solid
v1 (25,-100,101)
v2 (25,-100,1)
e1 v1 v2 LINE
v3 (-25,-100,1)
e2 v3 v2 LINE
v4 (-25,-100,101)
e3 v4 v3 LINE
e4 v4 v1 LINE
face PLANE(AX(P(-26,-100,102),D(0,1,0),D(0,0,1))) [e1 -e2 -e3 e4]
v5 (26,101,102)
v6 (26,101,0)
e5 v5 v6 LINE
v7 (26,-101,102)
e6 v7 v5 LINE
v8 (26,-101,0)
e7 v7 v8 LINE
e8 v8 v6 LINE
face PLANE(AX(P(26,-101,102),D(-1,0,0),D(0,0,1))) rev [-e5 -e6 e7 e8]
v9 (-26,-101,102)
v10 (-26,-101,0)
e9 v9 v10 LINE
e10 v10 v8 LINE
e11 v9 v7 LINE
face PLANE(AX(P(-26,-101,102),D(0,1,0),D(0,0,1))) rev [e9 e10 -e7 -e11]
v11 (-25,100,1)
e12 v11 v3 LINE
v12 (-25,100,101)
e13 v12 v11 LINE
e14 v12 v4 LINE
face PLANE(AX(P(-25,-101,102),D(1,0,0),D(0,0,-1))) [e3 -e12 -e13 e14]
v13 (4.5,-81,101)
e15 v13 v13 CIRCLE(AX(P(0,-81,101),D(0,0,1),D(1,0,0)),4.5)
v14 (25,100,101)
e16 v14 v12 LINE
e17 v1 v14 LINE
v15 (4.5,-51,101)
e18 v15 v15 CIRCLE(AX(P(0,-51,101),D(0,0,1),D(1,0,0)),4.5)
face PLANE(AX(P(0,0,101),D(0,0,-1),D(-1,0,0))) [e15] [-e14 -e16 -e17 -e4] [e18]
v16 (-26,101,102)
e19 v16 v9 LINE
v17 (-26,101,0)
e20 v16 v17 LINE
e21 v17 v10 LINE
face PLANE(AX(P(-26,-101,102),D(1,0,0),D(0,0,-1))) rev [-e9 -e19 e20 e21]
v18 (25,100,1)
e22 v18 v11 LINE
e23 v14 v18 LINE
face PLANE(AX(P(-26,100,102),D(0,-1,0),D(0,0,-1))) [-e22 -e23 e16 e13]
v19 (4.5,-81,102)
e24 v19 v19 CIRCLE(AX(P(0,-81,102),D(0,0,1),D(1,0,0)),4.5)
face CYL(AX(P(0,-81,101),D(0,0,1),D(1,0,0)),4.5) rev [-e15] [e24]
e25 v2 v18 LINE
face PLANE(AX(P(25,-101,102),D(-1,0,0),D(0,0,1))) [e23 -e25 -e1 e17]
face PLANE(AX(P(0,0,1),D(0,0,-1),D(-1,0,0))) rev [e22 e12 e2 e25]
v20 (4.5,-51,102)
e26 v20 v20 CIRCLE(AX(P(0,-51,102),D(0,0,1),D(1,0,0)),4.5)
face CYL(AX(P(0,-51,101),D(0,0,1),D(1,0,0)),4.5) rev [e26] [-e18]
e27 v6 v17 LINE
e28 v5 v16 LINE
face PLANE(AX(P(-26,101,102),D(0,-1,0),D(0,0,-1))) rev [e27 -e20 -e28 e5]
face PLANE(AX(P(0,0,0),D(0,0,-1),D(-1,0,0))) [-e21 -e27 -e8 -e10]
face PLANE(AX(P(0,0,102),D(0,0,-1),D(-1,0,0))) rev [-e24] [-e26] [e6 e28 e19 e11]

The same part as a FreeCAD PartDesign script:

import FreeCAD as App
import Part
import Sketcher

V = App.Vector


def faces_at(feature, points):
    """Names of the faces that lie closest to the given points."""
    faces = feature.Shape.Faces
    near = lambda p: min(range(len(faces)), key=lambda i: faces[i].distToShape(Part.Vertex(*p))[0])
    return sorted({f"Face{near(p) + 1}" for p in points})

doc = App.newDocument("Part")
params = doc.addObject("Spreadsheet::Sheet", "Params")
for row, (alias, value) in enumerate([
    ("sketch1_width", "52 mm"),
    ("sketch1_height", "202 mm"),
    ("pad1_length", "102 mm"),
    ("thickness_wall", "1 mm"),
    ("sketch2_width", "50 mm"),
    ("sketch2_height", "200 mm"),
    ("pad2_length", "1 mm"),
    ("sketch3_diameter", "9 mm"),
    ("pocket1_length", "1 mm"),
], start=1):
    params.set(f"A{row}", alias)
    params.set(f"B{row}", "=" + value)
    params.setAlias(f"B{row}", alias)

body = doc.addObject("PartDesign::Body", "Body")

# Sketch on XY plane
sketch1 = body.newObject("Sketcher::SketchObject", "Sketch")
sketch1.AttachmentSupport = (doc.getObject("XY_Plane"), [""])
sketch1.MapMode = "FlatFace"
sketch1.addGeometry([
    Part.LineSegment(V(-26, 101, 0), V(-26, -101, 0)),
    Part.LineSegment(V(-26, -101, 0), V(26, -101, 0)),
    Part.LineSegment(V(26, -101, 0), V(26, 101, 0)),
    Part.LineSegment(V(26, 101, 0), V(-26, 101, 0)),
], False)
sketch1.addConstraint([
    Sketcher.Constraint("Coincident", 0, 2, 1, 1),
    Sketcher.Constraint("Coincident", 1, 2, 2, 1),
    Sketcher.Constraint("Coincident", 2, 2, 3, 1),
    Sketcher.Constraint("Coincident", 3, 2, 0, 1),
    Sketcher.Constraint("Vertical", 0),
    Sketcher.Constraint("Horizontal", 1),
    Sketcher.Constraint("Vertical", 2),
    Sketcher.Constraint("Horizontal", 3),
    Sketcher.Constraint("Symmetric", 0, 2, 2, 2, -1, 1),
    Sketcher.Constraint("DistanceX", 1, 1, 1, 2, 52.0),
    Sketcher.Constraint("DistanceY", 0, 2, 0, 1, 202.0),
])
sketch1.setExpression("Constraints[9]", "Params.sketch1_width")
sketch1.setExpression("Constraints[10]", "Params.sketch1_height")
pad1 = body.newObject("PartDesign::Pad", "Pad")
pad1.Profile = sketch1
pad1.setExpression("Length", "Params.pad1_length")
doc.recompute()

thickness = body.newObject("PartDesign::Thickness", "Thickness")
thickness.Base = (pad1, faces_at(pad1, [(0, 0, 102)]))
thickness.setExpression("Value", "Params.thickness_wall")
thickness.Reversed = True
thickness.Join = "Intersection"

# Sketch on XY plane
sketch2 = body.newObject("Sketcher::SketchObject", "Sketch001")
sketch2.AttachmentSupport = (doc.getObject("XY_Plane"), [""])
sketch2.MapMode = "FlatFace"
sketch2.AttachmentOffset = App.Placement(V(0, 0, 102), App.Rotation())
sketch2.addGeometry([
    Part.LineSegment(V(-25, 100, 0), V(-25, -100, 0)),
    Part.LineSegment(V(-25, -100, 0), V(25, -100, 0)),
    Part.LineSegment(V(25, -100, 0), V(25, 100, 0)),
    Part.LineSegment(V(25, 100, 0), V(-25, 100, 0)),
], False)
sketch2.addConstraint([
    Sketcher.Constraint("Coincident", 0, 2, 1, 1),
    Sketcher.Constraint("Coincident", 1, 2, 2, 1),
    Sketcher.Constraint("Coincident", 2, 2, 3, 1),
    Sketcher.Constraint("Coincident", 3, 2, 0, 1),
    Sketcher.Constraint("Vertical", 0),
    Sketcher.Constraint("Horizontal", 1),
    Sketcher.Constraint("Vertical", 2),
    Sketcher.Constraint("Horizontal", 3),
    Sketcher.Constraint("Symmetric", 0, 2, 2, 2, -1, 1),
    Sketcher.Constraint("DistanceX", 1, 1, 1, 2, 50.0),
    Sketcher.Constraint("DistanceY", 0, 2, 0, 1, 200.0),
])
sketch2.setExpression("Constraints[9]", "Params.sketch2_width")
sketch2.setExpression("Constraints[10]", "Params.sketch2_height")
pad2 = body.newObject("PartDesign::Pad", "Pad001")
pad2.Profile = sketch2
pad2.setExpression("Length", "Params.pad2_length")
pad2.Reversed = True

# Sketch on XY plane
sketch3 = body.newObject("Sketcher::SketchObject", "Sketch002")
sketch3.AttachmentSupport = (doc.getObject("XY_Plane"), [""])
sketch3.MapMode = "FlatFace"
sketch3.AttachmentOffset = App.Placement(V(0, 0, 102), App.Rotation())
sketch3.addGeometry([
    Part.Circle(V(0, -81, 0), V(0, 0, 1), 4.5),
    Part.Circle(V(0, -51, 0), V(0, 0, 1), 4.5),
], False)
sketch3.addConstraint([
    Sketcher.Constraint("Equal", 0, 1),
    Sketcher.Constraint("PointOnObject", 0, 3, -2),
    Sketcher.Constraint("PointOnObject", 1, 3, -2),
    Sketcher.Constraint("Diameter", 0, 9.0),
    Sketcher.Constraint("DistanceY", 0, 3, -1, 1, 81.0),
    Sketcher.Constraint("DistanceY", 1, 3, -1, 1, 51.0),
])
sketch3.setExpression("Constraints[3]", "Params.sketch3_diameter")
pocket1 = body.newObject("PartDesign::Pocket", "Pocket")
pocket1.Profile = sketch3
pocket1.setExpression("Length", "Params.pocket1_length")

doc.recompute()
